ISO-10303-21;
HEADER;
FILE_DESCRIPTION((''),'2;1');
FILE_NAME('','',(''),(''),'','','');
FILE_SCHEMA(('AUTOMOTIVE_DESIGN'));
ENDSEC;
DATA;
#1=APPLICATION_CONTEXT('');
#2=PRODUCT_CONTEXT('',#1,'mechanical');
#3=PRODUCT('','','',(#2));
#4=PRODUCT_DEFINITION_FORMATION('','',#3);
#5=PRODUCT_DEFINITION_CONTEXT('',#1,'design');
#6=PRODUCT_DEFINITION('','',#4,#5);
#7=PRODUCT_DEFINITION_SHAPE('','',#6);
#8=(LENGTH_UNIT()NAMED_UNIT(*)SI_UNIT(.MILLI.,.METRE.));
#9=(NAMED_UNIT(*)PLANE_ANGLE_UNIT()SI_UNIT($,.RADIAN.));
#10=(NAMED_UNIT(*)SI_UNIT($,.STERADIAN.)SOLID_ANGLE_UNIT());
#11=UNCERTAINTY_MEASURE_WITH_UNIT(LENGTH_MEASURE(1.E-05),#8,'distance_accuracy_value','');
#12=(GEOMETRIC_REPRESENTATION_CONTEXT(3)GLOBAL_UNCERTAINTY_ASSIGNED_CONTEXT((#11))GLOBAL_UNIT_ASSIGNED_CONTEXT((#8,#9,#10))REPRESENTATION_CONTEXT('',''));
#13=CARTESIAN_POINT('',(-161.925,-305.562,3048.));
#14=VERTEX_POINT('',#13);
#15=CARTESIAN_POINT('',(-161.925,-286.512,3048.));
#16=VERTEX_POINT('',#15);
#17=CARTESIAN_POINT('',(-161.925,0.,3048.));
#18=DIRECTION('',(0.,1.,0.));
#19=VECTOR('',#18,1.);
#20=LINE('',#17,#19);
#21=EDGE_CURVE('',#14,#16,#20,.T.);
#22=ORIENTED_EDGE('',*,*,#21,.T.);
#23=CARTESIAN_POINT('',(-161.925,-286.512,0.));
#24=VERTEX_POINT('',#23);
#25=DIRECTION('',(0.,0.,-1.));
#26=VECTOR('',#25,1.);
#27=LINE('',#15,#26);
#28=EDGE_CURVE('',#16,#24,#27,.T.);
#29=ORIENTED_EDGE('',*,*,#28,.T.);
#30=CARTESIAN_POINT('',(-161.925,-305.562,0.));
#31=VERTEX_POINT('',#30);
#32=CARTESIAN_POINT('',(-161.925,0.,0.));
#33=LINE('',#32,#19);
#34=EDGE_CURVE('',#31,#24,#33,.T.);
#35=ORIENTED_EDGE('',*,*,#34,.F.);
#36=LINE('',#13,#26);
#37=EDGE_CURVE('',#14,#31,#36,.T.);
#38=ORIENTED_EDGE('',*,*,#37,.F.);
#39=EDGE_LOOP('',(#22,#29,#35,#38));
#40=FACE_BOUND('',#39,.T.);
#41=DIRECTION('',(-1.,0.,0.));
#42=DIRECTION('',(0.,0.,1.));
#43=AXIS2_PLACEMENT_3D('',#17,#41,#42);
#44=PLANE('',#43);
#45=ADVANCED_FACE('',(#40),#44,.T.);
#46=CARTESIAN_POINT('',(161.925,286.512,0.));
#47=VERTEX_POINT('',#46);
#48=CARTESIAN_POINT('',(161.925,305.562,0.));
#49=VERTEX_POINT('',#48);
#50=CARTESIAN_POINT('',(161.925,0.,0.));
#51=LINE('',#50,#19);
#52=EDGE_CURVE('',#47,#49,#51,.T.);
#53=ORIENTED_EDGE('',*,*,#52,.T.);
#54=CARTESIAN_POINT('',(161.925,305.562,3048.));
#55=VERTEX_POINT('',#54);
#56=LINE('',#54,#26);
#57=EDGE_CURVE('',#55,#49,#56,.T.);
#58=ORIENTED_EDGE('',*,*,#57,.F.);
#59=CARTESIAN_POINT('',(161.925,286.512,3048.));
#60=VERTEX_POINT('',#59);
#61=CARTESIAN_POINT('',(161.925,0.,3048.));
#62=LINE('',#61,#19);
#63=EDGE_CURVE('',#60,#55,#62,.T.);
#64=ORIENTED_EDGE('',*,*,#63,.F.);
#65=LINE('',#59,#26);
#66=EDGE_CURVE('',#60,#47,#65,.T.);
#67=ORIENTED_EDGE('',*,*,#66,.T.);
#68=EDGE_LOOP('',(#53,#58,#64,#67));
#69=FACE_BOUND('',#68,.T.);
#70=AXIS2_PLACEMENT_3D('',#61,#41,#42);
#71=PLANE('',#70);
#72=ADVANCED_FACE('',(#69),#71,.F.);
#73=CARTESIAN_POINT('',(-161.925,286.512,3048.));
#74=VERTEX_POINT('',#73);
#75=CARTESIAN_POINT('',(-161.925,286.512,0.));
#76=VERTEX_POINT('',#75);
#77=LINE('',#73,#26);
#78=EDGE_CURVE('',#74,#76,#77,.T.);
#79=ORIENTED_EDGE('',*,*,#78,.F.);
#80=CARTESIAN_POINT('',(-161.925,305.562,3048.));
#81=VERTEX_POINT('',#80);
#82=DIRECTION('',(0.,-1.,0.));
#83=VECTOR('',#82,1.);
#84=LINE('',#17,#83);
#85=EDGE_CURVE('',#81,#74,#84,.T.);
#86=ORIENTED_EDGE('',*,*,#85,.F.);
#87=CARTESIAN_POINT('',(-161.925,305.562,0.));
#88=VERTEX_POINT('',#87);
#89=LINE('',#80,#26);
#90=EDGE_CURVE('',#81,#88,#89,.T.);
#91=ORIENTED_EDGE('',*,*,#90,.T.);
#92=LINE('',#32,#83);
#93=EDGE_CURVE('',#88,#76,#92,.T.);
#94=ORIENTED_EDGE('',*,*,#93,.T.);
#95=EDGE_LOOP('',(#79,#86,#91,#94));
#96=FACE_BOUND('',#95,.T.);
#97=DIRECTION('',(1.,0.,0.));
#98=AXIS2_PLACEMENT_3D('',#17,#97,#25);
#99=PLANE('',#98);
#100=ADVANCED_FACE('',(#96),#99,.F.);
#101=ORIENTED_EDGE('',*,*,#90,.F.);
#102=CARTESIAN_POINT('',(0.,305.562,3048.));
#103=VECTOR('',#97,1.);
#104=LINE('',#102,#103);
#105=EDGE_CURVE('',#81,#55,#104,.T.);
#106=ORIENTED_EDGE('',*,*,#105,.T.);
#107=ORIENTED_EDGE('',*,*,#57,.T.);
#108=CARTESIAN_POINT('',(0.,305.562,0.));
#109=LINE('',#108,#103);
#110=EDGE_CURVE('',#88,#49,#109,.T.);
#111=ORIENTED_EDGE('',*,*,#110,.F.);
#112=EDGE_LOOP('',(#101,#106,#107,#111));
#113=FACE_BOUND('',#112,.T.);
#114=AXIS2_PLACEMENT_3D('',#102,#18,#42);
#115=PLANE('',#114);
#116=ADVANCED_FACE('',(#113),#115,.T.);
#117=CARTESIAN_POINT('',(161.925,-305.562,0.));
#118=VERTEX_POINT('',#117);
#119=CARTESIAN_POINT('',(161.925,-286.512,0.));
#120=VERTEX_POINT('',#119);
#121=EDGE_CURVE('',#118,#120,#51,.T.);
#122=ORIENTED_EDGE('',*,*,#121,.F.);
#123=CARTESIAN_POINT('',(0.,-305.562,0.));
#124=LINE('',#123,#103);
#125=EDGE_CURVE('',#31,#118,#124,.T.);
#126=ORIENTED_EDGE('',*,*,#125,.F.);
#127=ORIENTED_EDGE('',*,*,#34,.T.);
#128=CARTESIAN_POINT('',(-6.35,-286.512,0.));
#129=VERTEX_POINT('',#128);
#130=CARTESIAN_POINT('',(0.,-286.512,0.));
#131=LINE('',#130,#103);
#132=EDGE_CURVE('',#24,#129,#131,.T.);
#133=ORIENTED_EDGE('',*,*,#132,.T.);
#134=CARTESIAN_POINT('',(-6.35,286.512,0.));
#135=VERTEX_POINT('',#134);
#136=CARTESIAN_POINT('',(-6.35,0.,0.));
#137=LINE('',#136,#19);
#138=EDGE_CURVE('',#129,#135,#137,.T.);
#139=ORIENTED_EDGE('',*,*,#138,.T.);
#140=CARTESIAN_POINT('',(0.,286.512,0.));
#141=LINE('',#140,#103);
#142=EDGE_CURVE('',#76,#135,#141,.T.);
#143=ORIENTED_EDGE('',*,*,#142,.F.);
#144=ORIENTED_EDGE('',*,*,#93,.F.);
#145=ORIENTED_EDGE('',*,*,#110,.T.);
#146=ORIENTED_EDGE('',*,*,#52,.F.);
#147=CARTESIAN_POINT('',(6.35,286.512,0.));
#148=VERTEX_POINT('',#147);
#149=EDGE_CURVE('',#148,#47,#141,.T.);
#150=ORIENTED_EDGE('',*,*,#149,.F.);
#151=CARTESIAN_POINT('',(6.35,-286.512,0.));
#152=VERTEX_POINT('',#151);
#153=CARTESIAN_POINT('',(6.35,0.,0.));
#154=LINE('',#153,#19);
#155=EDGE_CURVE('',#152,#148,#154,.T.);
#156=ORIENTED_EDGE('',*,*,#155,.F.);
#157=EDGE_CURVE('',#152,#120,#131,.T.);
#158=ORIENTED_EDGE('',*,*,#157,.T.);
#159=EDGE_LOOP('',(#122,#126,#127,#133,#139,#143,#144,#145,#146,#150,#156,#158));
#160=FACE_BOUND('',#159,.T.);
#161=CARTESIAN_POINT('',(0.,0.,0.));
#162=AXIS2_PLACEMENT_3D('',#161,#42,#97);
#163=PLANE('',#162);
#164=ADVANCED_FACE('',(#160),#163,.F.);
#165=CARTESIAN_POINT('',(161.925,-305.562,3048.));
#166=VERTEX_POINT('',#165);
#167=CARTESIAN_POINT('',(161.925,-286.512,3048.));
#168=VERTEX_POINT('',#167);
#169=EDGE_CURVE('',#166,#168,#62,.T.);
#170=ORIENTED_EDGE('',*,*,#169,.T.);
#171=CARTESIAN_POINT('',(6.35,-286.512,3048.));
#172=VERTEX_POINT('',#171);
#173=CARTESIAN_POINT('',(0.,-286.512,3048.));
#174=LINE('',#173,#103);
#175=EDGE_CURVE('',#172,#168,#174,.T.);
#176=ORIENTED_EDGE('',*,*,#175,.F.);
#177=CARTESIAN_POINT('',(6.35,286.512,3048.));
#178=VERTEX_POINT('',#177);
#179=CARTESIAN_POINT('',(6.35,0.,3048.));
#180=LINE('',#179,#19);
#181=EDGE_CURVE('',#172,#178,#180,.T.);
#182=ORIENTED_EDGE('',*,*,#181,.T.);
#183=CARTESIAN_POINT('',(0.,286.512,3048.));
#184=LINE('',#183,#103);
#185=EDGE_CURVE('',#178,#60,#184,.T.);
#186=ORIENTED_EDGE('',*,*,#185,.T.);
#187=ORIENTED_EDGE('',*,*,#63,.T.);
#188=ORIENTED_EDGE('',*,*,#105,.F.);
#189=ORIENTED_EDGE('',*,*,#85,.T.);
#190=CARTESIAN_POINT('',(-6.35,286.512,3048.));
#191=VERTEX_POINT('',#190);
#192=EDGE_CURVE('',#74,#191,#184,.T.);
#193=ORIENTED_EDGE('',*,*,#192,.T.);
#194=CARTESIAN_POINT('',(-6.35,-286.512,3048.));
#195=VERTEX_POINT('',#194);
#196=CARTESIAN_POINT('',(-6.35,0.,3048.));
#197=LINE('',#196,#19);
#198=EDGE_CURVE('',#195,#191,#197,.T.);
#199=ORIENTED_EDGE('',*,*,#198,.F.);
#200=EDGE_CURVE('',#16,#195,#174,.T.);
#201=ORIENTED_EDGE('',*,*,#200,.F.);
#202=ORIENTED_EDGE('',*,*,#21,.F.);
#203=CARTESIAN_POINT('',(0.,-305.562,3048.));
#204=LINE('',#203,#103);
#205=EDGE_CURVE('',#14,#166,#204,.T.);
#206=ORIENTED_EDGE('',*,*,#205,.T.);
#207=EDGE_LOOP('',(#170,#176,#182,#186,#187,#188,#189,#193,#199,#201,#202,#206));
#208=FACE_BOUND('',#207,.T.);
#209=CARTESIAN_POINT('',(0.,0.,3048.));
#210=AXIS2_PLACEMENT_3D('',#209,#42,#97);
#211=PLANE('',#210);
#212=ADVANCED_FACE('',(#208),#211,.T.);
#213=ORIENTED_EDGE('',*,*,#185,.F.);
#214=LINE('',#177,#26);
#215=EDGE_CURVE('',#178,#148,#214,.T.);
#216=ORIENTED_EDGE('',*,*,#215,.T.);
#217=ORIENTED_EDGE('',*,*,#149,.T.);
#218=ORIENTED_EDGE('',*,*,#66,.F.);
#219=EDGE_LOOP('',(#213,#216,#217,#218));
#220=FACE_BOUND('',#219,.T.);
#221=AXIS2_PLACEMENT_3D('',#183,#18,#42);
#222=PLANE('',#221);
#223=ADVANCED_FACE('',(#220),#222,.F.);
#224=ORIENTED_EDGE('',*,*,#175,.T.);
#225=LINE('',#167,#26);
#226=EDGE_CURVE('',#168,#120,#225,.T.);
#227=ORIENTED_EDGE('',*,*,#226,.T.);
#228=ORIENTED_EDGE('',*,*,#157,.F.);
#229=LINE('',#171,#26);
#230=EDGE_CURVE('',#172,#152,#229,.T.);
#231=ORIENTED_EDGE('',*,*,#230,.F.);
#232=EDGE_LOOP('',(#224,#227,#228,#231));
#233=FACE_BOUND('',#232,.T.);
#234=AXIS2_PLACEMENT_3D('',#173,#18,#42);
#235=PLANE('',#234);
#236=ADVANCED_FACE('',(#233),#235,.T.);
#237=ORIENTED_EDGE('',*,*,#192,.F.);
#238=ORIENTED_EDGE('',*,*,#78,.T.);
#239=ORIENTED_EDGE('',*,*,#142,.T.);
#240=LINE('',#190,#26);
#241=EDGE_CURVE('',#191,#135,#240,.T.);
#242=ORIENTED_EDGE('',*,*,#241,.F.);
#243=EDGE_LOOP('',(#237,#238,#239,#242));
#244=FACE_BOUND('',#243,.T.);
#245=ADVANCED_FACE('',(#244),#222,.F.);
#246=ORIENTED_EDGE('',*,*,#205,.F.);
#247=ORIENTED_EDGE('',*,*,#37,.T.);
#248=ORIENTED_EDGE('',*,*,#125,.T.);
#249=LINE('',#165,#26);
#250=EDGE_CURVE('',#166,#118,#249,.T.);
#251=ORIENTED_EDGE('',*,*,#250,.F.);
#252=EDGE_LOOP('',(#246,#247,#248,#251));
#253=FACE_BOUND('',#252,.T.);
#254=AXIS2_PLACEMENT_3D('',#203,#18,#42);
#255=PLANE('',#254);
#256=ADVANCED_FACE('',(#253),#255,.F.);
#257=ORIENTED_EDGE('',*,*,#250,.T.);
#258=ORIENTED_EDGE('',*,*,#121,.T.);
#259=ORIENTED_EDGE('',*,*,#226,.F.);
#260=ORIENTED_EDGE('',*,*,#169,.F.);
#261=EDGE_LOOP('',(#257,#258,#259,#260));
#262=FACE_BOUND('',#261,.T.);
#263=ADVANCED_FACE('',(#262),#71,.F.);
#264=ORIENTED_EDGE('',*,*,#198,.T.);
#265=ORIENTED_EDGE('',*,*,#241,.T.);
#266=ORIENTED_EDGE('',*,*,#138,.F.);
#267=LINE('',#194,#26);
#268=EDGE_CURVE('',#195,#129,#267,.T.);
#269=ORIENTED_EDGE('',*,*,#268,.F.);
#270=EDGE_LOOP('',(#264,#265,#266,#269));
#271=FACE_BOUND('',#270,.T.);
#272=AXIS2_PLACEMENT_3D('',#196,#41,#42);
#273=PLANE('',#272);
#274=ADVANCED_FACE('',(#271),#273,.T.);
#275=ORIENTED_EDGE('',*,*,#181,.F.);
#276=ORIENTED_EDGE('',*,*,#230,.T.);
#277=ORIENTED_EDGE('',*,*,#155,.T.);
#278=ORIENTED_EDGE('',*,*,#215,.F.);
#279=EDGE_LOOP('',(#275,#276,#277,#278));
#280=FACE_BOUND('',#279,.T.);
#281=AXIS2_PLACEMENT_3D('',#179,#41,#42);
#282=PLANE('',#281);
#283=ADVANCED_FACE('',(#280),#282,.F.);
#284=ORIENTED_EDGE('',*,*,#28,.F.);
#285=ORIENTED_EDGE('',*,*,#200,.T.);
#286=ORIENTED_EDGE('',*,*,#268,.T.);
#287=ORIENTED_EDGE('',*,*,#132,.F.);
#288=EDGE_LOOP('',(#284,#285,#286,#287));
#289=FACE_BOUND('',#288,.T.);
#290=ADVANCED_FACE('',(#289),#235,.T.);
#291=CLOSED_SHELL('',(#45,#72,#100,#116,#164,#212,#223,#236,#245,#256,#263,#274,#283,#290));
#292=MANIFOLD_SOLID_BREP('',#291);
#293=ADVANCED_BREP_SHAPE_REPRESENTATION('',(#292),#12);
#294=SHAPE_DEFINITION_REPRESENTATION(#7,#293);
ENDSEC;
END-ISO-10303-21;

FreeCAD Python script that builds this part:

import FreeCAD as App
import Part
import Sketcher
from FreeCAD import Vector
Q = App.Units.Quantity


def add_polygon(sketch, points):
    """Adds a closed chain of lines whose ends are joined by coincident constraints."""
    first, n = sketch.GeometryCount, len(points)
    for a, b in zip(points, points[1:] + points[:1]):
        sketch.addGeometry(Part.LineSegment(App.Vector(*a, 0), App.Vector(*b, 0)), False)
    for i in range(n):
        sketch.addConstraint(Sketcher.Constraint("Coincident", first + i, 2, first + (i + 1) % n, 1))

doc = App.newDocument("Part")
body = doc.addObject("PartDesign::Body", "Body")

sketch1 = doc.addObject("Sketcher::SketchObject", "Sketch")
body.addObject(sketch1)
sketch1.AttachmentSupport = (doc.XY_Plane, [""])
sketch1.MapMode = "FlatFace"
add_polygon(sketch1, [(-162, 306), (-162, 287), (-6, 287), (-6, -287), (-162, -287), (-162, -306), (162, -306), (162, -287), (6, -287), (6, 287), (162, 287), (162, 306)])
sketch1.addConstraint([
    Sketcher.Constraint("Vertical", 0),
    Sketcher.Constraint("Horizontal", 1),
    Sketcher.Constraint("Vertical", 2),
    Sketcher.Constraint("Horizontal", 3),
    Sketcher.Constraint("Vertical", 4),
    Sketcher.Constraint("Horizontal", 5),
    Sketcher.Constraint("Vertical", 6),
    Sketcher.Constraint("Horizontal", 7),
    Sketcher.Constraint("Vertical", 8),
    Sketcher.Constraint("Horizontal", 9),
    Sketcher.Constraint("Vertical", 10),
    Sketcher.Constraint("Horizontal", 11),
    Sketcher.Constraint("Symmetric", 0, 2, 6, 2, -1, 1),
    Sketcher.Constraint("Symmetric", 2, 2, 8, 2, -1, 1),
    Sketcher.Constraint("Symmetric", 4, 2, 10, 2, -1, 1),
    Sketcher.Constraint("Symmetric", 3, 2, 6, 2, -2),
    Sketcher.Constraint("DistanceX", 5, 1, 5, 2, Q("12.75 in")),
    Sketcher.Constraint("DistanceY", 0, 2, 0, 1, Q("0.75 in")),
    Sketcher.Constraint("DistanceY", 2, 2, 2, 1, Q("22.56 in")),
    Sketcher.Constraint("DistanceX", 2, 2, 7, 2, Q("0.5 in")),
])
pad1 = doc.addObject("PartDesign::Pad", "Pad")
body.addObject(pad1)
pad1.Profile = sketch1
pad1.Length = Q("120 in")

doc.recompute()
